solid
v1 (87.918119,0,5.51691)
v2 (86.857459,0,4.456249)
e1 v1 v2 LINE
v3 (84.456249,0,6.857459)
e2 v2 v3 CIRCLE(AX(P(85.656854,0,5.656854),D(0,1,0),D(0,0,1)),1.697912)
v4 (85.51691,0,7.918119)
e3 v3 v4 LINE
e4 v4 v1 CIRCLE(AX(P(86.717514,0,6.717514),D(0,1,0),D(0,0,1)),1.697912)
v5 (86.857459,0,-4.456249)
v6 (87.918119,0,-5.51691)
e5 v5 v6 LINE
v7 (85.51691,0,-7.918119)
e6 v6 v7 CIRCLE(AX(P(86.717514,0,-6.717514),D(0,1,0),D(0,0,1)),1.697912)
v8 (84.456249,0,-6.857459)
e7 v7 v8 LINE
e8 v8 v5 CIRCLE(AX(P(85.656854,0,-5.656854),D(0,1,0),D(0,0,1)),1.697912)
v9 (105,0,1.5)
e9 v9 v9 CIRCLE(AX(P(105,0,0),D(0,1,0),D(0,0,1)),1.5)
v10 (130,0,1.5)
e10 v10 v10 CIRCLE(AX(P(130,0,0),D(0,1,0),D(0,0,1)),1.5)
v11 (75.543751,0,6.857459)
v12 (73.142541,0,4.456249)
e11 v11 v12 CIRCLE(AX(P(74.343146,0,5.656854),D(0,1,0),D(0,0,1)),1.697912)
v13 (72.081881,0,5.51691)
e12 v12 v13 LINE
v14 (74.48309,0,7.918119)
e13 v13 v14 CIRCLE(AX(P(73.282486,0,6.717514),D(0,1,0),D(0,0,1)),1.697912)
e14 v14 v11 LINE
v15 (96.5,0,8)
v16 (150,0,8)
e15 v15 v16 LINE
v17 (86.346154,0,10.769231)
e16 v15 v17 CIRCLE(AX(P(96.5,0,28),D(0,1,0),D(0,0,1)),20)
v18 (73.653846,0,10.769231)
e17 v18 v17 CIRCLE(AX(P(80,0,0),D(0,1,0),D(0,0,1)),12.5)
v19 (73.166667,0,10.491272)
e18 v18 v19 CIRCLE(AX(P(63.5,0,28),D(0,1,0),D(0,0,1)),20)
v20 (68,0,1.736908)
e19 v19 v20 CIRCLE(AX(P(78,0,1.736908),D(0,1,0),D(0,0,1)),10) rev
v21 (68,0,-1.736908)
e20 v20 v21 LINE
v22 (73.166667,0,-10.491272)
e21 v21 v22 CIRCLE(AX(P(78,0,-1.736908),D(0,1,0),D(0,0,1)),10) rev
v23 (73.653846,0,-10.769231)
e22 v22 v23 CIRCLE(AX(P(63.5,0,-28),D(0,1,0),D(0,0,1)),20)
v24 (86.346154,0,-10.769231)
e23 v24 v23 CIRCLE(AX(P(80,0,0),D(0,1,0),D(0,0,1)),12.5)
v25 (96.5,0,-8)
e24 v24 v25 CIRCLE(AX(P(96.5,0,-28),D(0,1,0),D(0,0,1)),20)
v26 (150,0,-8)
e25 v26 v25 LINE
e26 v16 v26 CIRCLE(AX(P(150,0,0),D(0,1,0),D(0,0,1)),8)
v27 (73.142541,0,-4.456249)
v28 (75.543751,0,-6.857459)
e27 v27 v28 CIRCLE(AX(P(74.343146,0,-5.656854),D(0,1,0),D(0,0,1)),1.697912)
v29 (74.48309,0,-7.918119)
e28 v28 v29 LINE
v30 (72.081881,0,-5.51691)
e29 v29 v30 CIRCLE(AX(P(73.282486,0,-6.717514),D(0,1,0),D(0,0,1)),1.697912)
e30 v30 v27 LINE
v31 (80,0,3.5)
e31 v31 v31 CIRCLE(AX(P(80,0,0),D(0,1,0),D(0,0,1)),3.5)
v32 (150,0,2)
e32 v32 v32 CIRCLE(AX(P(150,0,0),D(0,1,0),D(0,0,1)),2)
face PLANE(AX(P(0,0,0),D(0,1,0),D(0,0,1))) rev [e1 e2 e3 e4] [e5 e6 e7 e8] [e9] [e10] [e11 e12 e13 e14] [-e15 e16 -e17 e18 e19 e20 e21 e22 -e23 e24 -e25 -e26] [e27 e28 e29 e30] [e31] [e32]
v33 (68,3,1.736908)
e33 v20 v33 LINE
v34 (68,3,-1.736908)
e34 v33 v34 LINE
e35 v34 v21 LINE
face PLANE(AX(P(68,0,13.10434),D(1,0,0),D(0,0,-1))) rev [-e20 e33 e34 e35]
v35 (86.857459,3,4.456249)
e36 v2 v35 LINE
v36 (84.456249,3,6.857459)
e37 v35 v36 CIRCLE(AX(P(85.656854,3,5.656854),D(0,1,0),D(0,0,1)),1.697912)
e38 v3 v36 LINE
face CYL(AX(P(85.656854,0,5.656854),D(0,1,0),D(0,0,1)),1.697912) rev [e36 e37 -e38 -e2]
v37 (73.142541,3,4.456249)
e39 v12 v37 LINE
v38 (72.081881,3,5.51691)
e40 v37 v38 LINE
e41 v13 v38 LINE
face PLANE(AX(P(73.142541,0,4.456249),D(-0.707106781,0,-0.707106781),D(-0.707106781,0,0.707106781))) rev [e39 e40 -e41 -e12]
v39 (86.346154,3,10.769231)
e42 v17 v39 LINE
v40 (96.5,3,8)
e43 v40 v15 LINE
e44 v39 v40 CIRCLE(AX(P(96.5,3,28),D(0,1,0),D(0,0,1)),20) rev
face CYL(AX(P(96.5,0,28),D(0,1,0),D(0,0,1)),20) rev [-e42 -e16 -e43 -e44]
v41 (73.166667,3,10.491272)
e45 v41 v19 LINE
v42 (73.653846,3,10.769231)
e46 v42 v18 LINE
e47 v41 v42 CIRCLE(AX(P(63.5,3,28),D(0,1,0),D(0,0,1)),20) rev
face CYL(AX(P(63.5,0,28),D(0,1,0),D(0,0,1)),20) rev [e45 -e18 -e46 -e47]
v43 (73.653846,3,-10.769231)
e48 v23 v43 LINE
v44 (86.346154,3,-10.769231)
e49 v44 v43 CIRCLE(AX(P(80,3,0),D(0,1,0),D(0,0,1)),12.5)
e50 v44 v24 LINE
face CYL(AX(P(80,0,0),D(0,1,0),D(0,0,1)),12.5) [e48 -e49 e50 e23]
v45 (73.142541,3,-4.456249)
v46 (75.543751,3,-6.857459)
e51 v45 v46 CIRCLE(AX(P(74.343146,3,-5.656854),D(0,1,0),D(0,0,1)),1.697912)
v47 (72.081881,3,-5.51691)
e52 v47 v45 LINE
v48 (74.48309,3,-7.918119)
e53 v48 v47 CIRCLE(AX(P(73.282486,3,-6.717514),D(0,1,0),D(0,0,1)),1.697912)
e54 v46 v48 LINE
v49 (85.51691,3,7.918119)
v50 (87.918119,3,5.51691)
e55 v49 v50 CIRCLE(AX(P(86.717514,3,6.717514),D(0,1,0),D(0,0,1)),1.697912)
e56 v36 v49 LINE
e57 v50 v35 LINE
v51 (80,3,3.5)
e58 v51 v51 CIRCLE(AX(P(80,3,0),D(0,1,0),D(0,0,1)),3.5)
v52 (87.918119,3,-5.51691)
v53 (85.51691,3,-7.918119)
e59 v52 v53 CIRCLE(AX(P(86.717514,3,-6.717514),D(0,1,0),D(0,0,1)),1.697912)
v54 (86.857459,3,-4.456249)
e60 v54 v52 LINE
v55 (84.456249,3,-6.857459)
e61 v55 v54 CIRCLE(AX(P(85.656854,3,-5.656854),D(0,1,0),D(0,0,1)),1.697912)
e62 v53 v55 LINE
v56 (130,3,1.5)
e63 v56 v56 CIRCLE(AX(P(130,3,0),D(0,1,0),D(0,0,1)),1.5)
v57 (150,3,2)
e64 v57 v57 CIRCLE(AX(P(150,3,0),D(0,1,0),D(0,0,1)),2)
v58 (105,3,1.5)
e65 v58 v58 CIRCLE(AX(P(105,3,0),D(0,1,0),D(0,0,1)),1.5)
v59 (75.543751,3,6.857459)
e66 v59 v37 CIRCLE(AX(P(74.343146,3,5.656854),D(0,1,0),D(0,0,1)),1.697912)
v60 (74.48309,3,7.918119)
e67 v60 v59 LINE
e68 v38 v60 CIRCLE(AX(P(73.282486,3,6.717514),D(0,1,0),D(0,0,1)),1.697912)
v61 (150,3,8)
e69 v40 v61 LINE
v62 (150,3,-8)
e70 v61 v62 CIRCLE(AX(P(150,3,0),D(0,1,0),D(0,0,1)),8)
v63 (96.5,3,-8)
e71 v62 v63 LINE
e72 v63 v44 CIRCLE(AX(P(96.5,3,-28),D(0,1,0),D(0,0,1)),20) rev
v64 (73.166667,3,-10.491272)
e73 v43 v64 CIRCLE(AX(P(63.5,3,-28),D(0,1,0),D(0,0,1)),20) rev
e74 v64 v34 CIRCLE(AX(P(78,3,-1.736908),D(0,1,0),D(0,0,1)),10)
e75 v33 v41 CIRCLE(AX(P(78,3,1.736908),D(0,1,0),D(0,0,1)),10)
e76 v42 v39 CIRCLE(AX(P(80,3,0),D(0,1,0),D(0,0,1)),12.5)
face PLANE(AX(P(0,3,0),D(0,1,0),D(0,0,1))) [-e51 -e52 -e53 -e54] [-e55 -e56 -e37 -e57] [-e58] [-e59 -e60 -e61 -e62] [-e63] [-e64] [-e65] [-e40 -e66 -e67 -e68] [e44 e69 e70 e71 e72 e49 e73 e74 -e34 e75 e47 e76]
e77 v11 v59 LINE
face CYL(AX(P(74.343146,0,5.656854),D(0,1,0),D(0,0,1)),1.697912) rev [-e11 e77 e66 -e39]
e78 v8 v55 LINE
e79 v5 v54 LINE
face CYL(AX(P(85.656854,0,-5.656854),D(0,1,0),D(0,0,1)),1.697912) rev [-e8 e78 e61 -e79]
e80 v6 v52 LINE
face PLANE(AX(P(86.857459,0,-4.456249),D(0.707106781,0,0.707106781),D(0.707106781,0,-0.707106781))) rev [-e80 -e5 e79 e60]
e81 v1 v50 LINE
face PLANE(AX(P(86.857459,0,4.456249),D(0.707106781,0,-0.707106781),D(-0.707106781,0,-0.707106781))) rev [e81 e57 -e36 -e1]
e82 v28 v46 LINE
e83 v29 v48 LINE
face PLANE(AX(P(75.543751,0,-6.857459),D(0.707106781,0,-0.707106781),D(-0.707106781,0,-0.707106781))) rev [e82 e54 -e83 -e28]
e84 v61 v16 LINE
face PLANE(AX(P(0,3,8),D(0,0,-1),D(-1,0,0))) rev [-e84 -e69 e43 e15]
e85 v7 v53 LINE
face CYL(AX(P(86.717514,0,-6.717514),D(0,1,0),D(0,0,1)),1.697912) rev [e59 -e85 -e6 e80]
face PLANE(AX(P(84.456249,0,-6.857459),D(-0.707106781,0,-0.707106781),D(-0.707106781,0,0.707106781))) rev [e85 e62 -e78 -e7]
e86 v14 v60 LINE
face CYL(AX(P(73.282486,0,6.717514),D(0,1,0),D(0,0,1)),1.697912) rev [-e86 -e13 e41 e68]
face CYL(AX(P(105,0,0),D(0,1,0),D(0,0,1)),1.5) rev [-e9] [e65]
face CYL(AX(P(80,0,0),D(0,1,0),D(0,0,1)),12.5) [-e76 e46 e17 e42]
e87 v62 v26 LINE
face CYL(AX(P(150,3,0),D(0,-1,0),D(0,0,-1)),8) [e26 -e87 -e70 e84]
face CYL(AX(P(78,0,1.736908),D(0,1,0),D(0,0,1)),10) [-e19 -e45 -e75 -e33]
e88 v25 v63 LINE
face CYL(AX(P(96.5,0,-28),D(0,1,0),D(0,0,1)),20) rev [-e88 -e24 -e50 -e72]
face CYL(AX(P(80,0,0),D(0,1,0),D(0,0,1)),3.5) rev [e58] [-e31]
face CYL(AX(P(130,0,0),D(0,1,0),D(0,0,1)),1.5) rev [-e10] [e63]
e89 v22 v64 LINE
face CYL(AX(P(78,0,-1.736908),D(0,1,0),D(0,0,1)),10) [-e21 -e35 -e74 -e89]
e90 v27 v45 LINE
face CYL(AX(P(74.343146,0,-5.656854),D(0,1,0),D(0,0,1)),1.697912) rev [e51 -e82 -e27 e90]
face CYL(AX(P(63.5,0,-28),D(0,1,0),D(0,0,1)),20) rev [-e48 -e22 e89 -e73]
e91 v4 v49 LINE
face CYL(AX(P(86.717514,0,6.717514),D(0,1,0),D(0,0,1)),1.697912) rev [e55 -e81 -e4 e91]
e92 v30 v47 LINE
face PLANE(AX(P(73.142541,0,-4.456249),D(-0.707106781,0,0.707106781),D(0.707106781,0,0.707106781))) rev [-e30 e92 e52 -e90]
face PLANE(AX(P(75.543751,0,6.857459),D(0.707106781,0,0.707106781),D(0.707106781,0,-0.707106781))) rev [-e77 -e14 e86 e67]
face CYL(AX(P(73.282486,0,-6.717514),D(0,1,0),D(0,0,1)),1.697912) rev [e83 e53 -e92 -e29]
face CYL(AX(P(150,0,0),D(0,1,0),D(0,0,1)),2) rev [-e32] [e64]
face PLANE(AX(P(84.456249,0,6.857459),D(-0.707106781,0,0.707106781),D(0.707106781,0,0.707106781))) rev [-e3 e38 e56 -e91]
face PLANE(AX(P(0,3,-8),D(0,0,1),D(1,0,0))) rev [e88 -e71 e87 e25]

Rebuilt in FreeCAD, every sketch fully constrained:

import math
import FreeCAD as App
import Part
import Sketcher
from FreeCAD import Vector


def edges_at(feature, points):
    """Names of the edges that pass closest to the given points."""
    edges = feature.Shape.Edges
    near = lambda p: min(range(len(edges)), key=lambda i: edges[i].distToShape(Part.Vertex(*p))[0])
    return sorted({f"Edge{near(p) + 1}" for p in points})

doc = App.newDocument("Part")
body = doc.addObject("PartDesign::Body", "Body")

# Sketch on XZ plane
sketch1 = body.newObject("Sketcher::SketchObject", "Sketch")
sketch1.AttachmentSupport = (doc.getObject("XZ_Plane"), [""])
sketch1.MapMode = "FlatFace"
sketch1.addGeometry([
    Part.LineSegment(Vector(150, -8, 0), Vector(0, -8, 0)),
    Part.ArcOfCircle(Part.Circle(Vector(0, 0, 0), Vector(0, 0, 1), 8), math.radians(90), math.radians(270)),
    Part.LineSegment(Vector(0, 8, 0), Vector(150, 8, 0)),
    Part.ArcOfCircle(Part.Circle(Vector(150, 0, 0), Vector(0, 0, 1), 8), math.radians(-90), math.radians(90)),
], False)
sketch1.addConstraint([
    Sketcher.Constraint("Tangent", 0, 2, 1, 2),
    Sketcher.Constraint("Tangent", 1, 1, 2, 1),
    Sketcher.Constraint("Tangent", 2, 2, 3, 2),
    Sketcher.Constraint("Tangent", 3, 1, 0, 1),
    Sketcher.Constraint("Horizontal", 0),
    Sketcher.Constraint("Horizontal", 2),
    Sketcher.Constraint("Coincident", 1, 3, -1, 1),
    Sketcher.Constraint("Radius", 1, 8.0),
    Sketcher.Constraint("DistanceX", 0, 2, 0, 1, 150.0),
])
pad1 = body.newObject("PartDesign::Pad", "Pad")
pad1.Profile = sketch1
pad1.Length = 3
pad1.Reversed = True

# Sketch on XZ plane
sketch2 = body.newObject("Sketcher::SketchObject", "Sketch001")
sketch2.AttachmentSupport = (doc.getObject("XZ_Plane"), [""])
sketch2.MapMode = "FlatFace"
sketch2.AttachmentOffset = App.Placement(Vector(0, 0, -3), App.Rotation())
sketch2.addGeometry(Part.Circle(Vector(80, 0, 0), Vector(0, 0, 1), 12), False)
sketch2.addConstraint([
    Sketcher.Constraint("PointOnObject", 0, 3, -1),
    Sketcher.Constraint("Diameter", 0, 25.0),
    Sketcher.Constraint("DistanceX", -1, 1, 0, 3, 80.0),
])
pad2 = body.newObject("PartDesign::Pad", "Pad001")
pad2.Profile = sketch2
pad2.Length = 3

# Sketch on XZ plane
sketch3 = body.newObject("Sketcher::SketchObject", "Sketch002")
sketch3.AttachmentSupport = (doc.getObject("XZ_Plane"), [""])
sketch3.MapMode = "FlatFace"
sketch3.AttachmentOffset = App.Placement(Vector(0, 0, -3), App.Rotation())
sketch3.addGeometry([
    Part.Circle(Vector(80, 0, 0), Vector(0, 0, 1), 3.5),  # 0
    Part.LineSegment(Vector(85.5, -7.9, 0), Vector(84.5, -6.9, 0)),  # 1
    Part.ArcOfCircle(Part.Circle(Vector(85.7, -5.7, 0), Vector(0, 0, 1), 1.7), math.radians(45), math.radians(225)),  # 2
    Part.LineSegment(Vector(86.9, -4.5, 0), Vector(87.9, -5.5, 0)),  # 3
    Part.ArcOfCircle(Part.Circle(Vector(86.7, -6.7, 0), Vector(0, 0, 1), 1.7), math.radians(-135), math.radians(45)),  # 4
    Part.LineSegment(Vector(84.5, 6.9, 0), Vector(85.5, 7.9, 0)),  # 5
    Part.ArcOfCircle(Part.Circle(Vector(86.7, 6.7, 0), Vector(0, 0, 1), 1.7), math.radians(-45), math.radians(135)),  # 6
    Part.LineSegment(Vector(87.9, 5.5, 0), Vector(86.9, 4.5, 0)),  # 7
    Part.ArcOfCircle(Part.Circle(Vector(85.7, 5.7, 0), Vector(0, 0, 1), 1.7), math.radians(135), math.radians(315)),  # 8
    Part.LineSegment(Vector(73.1, 4.5, 0), Vector(72.1, 5.5, 0)),  # 9
    Part.ArcOfCircle(Part.Circle(Vector(73.3, 6.7, 0), Vector(0, 0, 1), 1.7), math.radians(45), math.radians(225)),  # 10
    Part.LineSegment(Vector(74.5, 7.9, 0), Vector(75.5, 6.9, 0)),  # 11
    Part.ArcOfCircle(Part.Circle(Vector(74.3, 5.7, 0), Vector(0, 0, 1), 1.7), math.radians(-135), math.radians(45)),  # 12
    Part.LineSegment(Vector(75.5, -6.9, 0), Vector(74.5, -7.9, 0)),  # 13
    Part.ArcOfCircle(Part.Circle(Vector(73.3, -6.7, 0), Vector(0, 0, 1), 1.7), math.radians(135), math.radians(315)),  # 14
    Part.LineSegment(Vector(72.1, -5.5, 0), Vector(73.1, -4.5, 0)),  # 15
    Part.ArcOfCircle(Part.Circle(Vector(74.3, -5.7, 0), Vector(0, 0, 1), 1.7), math.radians(-45), math.radians(135)),  # 16
], False)
sketch3.addConstraint([
    Sketcher.Constraint("Tangent", 1, 2, 2, 2),
    Sketcher.Constraint("Tangent", 2, 1, 3, 1),
    Sketcher.Constraint("Tangent", 3, 2, 4, 2),
    Sketcher.Constraint("Tangent", 4, 1, 1, 1),
    Sketcher.Constraint("Tangent", 5, 2, 6, 2),
    Sketcher.Constraint("Tangent", 6, 1, 7, 1),
    Sketcher.Constraint("Tangent", 7, 2, 8, 2),
    Sketcher.Constraint("Tangent", 8, 1, 5, 1),
    Sketcher.Constraint("Tangent", 9, 2, 10, 2),
    Sketcher.Constraint("Tangent", 10, 1, 11, 1),
    Sketcher.Constraint("Tangent", 11, 2, 12, 2),
    Sketcher.Constraint("Tangent", 12, 1, 9, 1),
    Sketcher.Constraint("Tangent", 13, 2, 14, 2),
    Sketcher.Constraint("Tangent", 14, 1, 15, 1),
    Sketcher.Constraint("Tangent", 15, 2, 16, 2),
    Sketcher.Constraint("Tangent", 16, 1, 13, 1),
    Sketcher.Constraint("Equal", 2, 4),
    Sketcher.Constraint("Equal", 4, 6),
    Sketcher.Constraint("Equal", 6, 8),
    Sketcher.Constraint("Equal", 8, 10),
    Sketcher.Constraint("Equal", 10, 12),
    Sketcher.Constraint("Equal", 12, 14),
    Sketcher.Constraint("Equal", 14, 16),
    Sketcher.Constraint("Symmetric", 4, 3, 6, 3, -1),
    Sketcher.Constraint("Symmetric", 2, 3, 8, 3, -1),
    Sketcher.Constraint("Symmetric", 10, 3, 14, 3, -1),
    Sketcher.Constraint("Symmetric", 12, 3, 16, 3, -1),
    Sketcher.Constraint("PointOnObject", 0, 3, -1),
    Sketcher.Constraint("Perpendicular", 3, 5),
    Sketcher.Constraint("Perpendicular", 7, 9),
    Sketcher.Constraint("Horizontal", 6, 3, 10, 3),
    Sketcher.Constraint("Horizontal", 8, 3, 12, 3),
    Sketcher.Constraint("Diameter", 0, 7.0),
    Sketcher.Constraint("DistanceX", -1, 1, 0, 3, 80.0),
    Sketcher.Constraint("Distance", 1, 1.5),
    Sketcher.Constraint("Radius", 2, 1.697912),
    Sketcher.Constraint("DistanceX", -1, 1, 1, 2, 84.456249),
    Sketcher.Constraint("DistanceY", 1, 2, -1, 1, 6.857459),
    Sketcher.Constraint("DistanceX", -1, 1, 9, 2, 72.081881),
])
pocket1 = body.newObject("PartDesign::Pocket", "Pocket")
pocket1.Profile = sketch3
pocket1.Type = "ThroughAll"
pocket1.Reversed = True

# Sketch on XZ plane
sketch4 = body.newObject("Sketcher::SketchObject", "Sketch003")
sketch4.AttachmentSupport = (doc.getObject("XZ_Plane"), [""])
sketch4.MapMode = "FlatFace"
sketch4.AttachmentOffset = App.Placement(Vector(0, 0, -3), App.Rotation())
sketch4.addGeometry([
    Part.Circle(Vector(10, 0, 0), Vector(0, 0, 1), 1.5),
    Part.Circle(Vector(0, -5, 0), Vector(0, 0, 1), 1.5),
    Part.Circle(Vector(0, 5, 0), Vector(0, 0, 1), 1.5),
], False)
sketch4.addConstraint([
    Sketcher.Constraint("Equal", 0, 1),
    Sketcher.Constraint("Equal", 1, 2),
    Sketcher.Constraint("Symmetric", 1, 3, 2, 3, -1, 1),
    Sketcher.Constraint("PointOnObject", 0, 3, -1),
    Sketcher.Constraint("PointOnObject", 1, 3, -2),
    Sketcher.Constraint("Diameter", 0, 3.0),
    Sketcher.Constraint("DistanceX", -1, 1, 0, 3, 10.0),
    Sketcher.Constraint("DistanceY", 1, 3, -1, 1, 5.0),
])
pocket2 = body.newObject("PartDesign::Pocket", "Pocket001")
pocket2.Profile = sketch4
pocket2.Type = "ThroughAll"
pocket2.Reversed = True
doc.recompute()

fillet = body.newObject("PartDesign::Fillet", "Fillet")
fillet.Base = (pocket2, edges_at(pocket2, [
    (70.395, 1.5, 8),
    (70.395, 1.5, -8),
    (89.605, 1.5, 8),
    (89.605, 1.5, -8),
]))
fillet.Radius = 20

# Sketch on XZ plane
sketch5 = body.newObject("Sketcher::SketchObject", "Sketch004")
sketch5.AttachmentSupport = (doc.getObject("XZ_Plane"), [""])
sketch5.MapMode = "FlatFace"
sketch5.AttachmentOffset = App.Placement(Vector(0, 0, -3), App.Rotation())
sketch5.addGeometry(Part.Circle(Vector(150, 0, 0), Vector(0, 0, 1), 2), False)
sketch5.addConstraint([
    Sketcher.Constraint("PointOnObject", 0, 3, -1),
    Sketcher.Constraint("Diameter", 0, 4.0),
    Sketcher.Constraint("DistanceX", -1, 1, 0, 3, 150.0),
])
pocket3 = body.newObject("PartDesign::Pocket", "Pocket002")
pocket3.Profile = sketch5
pocket3.Type = "ThroughAll"
pocket3.Reversed = True

# Sketch on XZ plane
sketch6 = body.newObject("Sketcher::SketchObject", "Sketch005")
sketch6.AttachmentSupport = (doc.getObject("XZ_Plane"), [""])
sketch6.MapMode = "FlatFace"
sketch6.AttachmentOffset = App.Placement(Vector(0, 0, -3), App.Rotation())
sketch6.addGeometry([
    Part.LineSegment(Vector(-19, -13, 0), Vector(-19, 13, 0)),
    Part.LineSegment(Vector(-19, 13, 0), Vector(68, 13, 0)),
    Part.LineSegment(Vector(68, 13, 0), Vector(68, -13, 0)),
    Part.LineSegment(Vector(68, -13, 0), Vector(-19, -13, 0)),
], False)
sketch6.addConstraint([
    Sketcher.Constraint("Coincident", 0, 2, 1, 1),
    Sketcher.Constraint("Coincident", 1, 2, 2, 1),
    Sketcher.Constraint("Coincident", 2, 2, 3, 1),
    Sketcher.Constraint("Coincident", 3, 2, 0, 1),
    Sketcher.Constraint("Vertical", 0),
    Sketcher.Constraint("Horizontal", 1),
    Sketcher.Constraint("Vertical", 2),
    Sketcher.Constraint("Horizontal", 3),
    Sketcher.Constraint("DistanceX", -1, 1, 1, 2, 68.0),
    Sketcher.Constraint("DistanceY", 0, 1, 0, 2, 26.208681),
    Sketcher.Constraint("DistanceX", 1, 1, 1, 2, 86.588173),
    Sketcher.Constraint("DistanceY", -1, 1, 0, 2, 13.10434),
])
pocket4 = body.newObject("PartDesign::Pocket", "Pocket003")
pocket4.Profile = sketch6
pocket4.Type = "ThroughAll"
pocket4.Reversed = True
doc.recompute()

fillet2 = body.newObject("PartDesign::Fillet", "Fillet001")
fillet2.Base = (pocket4, edges_at(pocket4, [(68, 1.5, -8.513), (68, 1.5, 8.513)]))
fillet2.Radius = 10

# Sketch on XZ plane
sketch7 = body.newObject("Sketcher::SketchObject", "Sketch006")
sketch7.AttachmentSupport = (doc.getObject("XZ_Plane"), [""])
sketch7.MapMode = "FlatFace"
sketch7.AttachmentOffset = App.Placement(Vector(0, 0, -3), App.Rotation())
sketch7.addGeometry([
    Part.Circle(Vector(105, 0, 0), Vector(0, 0, 1), 1.5),
    Part.Circle(Vector(130, 0, 0), Vector(0, 0, 1), 1.5),
], False)
sketch7.addConstraint([
    Sketcher.Constraint("Equal", 0, 1),
    Sketcher.Constraint("PointOnObject", 0, 3, -1),
    Sketcher.Constraint("PointOnObject", 1, 3, -1),
    Sketcher.Constraint("Diameter", 0, 3.0),
    Sketcher.Constraint("DistanceX", -1, 1, 0, 3, 105.0),
    Sketcher.Constraint("DistanceX", -1, 1, 1, 3, 130.0),
])
pocket5 = body.newObject("PartDesign::Pocket", "Pocket004")
pocket5.Profile = sketch7
pocket5.Type = "ThroughAll"
pocket5.Reversed = True

doc.recompute()
